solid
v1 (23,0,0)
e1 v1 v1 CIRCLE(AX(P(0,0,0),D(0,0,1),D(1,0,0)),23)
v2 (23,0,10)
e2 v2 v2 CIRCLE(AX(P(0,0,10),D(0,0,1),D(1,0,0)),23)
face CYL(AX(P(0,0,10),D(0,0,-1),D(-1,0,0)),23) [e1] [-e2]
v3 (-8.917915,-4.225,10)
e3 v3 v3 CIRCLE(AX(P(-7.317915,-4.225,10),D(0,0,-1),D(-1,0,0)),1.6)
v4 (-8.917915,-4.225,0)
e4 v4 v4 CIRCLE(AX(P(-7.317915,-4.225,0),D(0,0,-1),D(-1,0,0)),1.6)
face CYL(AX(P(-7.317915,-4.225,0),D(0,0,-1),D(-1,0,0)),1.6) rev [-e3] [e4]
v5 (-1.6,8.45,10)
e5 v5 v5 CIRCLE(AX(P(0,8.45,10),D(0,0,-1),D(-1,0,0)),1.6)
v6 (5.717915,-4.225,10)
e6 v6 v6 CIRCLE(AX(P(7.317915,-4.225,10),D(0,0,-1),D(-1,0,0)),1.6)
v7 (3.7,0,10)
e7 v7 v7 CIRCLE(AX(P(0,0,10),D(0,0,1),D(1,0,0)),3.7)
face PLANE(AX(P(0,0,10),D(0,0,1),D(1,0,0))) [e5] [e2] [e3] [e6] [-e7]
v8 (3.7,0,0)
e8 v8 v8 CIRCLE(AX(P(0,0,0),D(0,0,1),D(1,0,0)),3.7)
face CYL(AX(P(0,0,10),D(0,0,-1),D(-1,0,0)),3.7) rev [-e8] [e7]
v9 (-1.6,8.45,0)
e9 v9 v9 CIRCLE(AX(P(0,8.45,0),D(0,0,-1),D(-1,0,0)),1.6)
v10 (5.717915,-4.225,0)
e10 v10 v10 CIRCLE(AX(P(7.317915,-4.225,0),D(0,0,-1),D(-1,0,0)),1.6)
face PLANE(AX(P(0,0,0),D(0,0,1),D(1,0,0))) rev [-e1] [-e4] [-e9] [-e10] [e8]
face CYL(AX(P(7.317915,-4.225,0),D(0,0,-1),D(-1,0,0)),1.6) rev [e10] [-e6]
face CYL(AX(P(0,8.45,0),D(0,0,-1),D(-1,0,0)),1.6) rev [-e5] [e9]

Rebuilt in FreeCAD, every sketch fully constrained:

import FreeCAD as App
import Part
import Sketcher
Q = App.Units.Quantity

doc = App.newDocument("Part")
body = doc.addObject("PartDesign::Body", "Body")

sketch1 = body.newObject("Sketcher::SketchObject", "Sketch")
sketch1.AttachmentSupport = (doc.getObject("XY_Plane"), [""])
sketch1.MapMode = "FlatFace"
sketch1.addGeometry(Part.Circle(App.Vector(0, 0, 0), App.Vector(0, 0, 1), 23), False)
sketch1.addGeometry(Part.Circle(App.Vector(0, 0, 0), App.Vector(0, 0, 1), 3.7), False)
sketch1.addConstraint(Sketcher.Constraint("Coincident", 0, 3, -1, 1))
sketch1.addConstraint(Sketcher.Constraint("Coincident", 1, 3, -1, 1))
sketch1.addConstraint(Sketcher.Constraint("Diameter", 0, Q("46 mm")))
sketch1.addConstraint(Sketcher.Constraint("Diameter", 1, Q("7.4 mm")))
pad1 = body.newObject("PartDesign::Pad", "Pad")
pad1.Profile = sketch1
pad1.Length = 10

sketch2 = body.newObject("Sketcher::SketchObject", "Sketch001")
sketch2.AttachmentSupport = (doc.getObject("XY_Plane"), [""])
sketch2.MapMode = "FlatFace"
sketch2.addGeometry(Part.Circle(App.Vector(0, 8.4, 0), App.Vector(0, 0, 1), 1.6), False)
sketch2.addGeometry(Part.Circle(App.Vector(7.3, -4.2, 0), App.Vector(0, 0, 1), 1.6), False)
sketch2.addGeometry(Part.Circle(App.Vector(-7.3, -4.2, 0), App.Vector(0, 0, 1), 1.6), False)
sketch2.addConstraint(Sketcher.Constraint("Equal", 0, 1))
sketch2.addConstraint(Sketcher.Constraint("Equal", 1, 2))
sketch2.addConstraint(Sketcher.Constraint("Symmetric", 1, 3, 2, 3, -2))
sketch2.addConstraint(Sketcher.Constraint("PointOnObject", 0, 3, -2))
sketch2.addConstraint(Sketcher.Constraint("Diameter", 0, Q("3.2 mm")))
sketch2.addConstraint(Sketcher.Constraint("DistanceY", -1, 1, 0, 3, Q("8.45 mm")))
sketch2.addConstraint(Sketcher.Constraint("DistanceY", 1, 3, -1, 1, Q("4.225 mm")))
sketch2.addConstraint(Sketcher.Constraint("DistanceX", 2, 3, 1, 3, Q("14.635829 mm")))
doc.recompute()
hole = body.newObject("PartDesign::Hole", "Hole")
hole.Profile = sketch2
hole.ThreadType = "None"
hole.Diameter = 3.2
hole.DepthType = "ThroughAll"
hole.Reversed = True

doc.recompute()
